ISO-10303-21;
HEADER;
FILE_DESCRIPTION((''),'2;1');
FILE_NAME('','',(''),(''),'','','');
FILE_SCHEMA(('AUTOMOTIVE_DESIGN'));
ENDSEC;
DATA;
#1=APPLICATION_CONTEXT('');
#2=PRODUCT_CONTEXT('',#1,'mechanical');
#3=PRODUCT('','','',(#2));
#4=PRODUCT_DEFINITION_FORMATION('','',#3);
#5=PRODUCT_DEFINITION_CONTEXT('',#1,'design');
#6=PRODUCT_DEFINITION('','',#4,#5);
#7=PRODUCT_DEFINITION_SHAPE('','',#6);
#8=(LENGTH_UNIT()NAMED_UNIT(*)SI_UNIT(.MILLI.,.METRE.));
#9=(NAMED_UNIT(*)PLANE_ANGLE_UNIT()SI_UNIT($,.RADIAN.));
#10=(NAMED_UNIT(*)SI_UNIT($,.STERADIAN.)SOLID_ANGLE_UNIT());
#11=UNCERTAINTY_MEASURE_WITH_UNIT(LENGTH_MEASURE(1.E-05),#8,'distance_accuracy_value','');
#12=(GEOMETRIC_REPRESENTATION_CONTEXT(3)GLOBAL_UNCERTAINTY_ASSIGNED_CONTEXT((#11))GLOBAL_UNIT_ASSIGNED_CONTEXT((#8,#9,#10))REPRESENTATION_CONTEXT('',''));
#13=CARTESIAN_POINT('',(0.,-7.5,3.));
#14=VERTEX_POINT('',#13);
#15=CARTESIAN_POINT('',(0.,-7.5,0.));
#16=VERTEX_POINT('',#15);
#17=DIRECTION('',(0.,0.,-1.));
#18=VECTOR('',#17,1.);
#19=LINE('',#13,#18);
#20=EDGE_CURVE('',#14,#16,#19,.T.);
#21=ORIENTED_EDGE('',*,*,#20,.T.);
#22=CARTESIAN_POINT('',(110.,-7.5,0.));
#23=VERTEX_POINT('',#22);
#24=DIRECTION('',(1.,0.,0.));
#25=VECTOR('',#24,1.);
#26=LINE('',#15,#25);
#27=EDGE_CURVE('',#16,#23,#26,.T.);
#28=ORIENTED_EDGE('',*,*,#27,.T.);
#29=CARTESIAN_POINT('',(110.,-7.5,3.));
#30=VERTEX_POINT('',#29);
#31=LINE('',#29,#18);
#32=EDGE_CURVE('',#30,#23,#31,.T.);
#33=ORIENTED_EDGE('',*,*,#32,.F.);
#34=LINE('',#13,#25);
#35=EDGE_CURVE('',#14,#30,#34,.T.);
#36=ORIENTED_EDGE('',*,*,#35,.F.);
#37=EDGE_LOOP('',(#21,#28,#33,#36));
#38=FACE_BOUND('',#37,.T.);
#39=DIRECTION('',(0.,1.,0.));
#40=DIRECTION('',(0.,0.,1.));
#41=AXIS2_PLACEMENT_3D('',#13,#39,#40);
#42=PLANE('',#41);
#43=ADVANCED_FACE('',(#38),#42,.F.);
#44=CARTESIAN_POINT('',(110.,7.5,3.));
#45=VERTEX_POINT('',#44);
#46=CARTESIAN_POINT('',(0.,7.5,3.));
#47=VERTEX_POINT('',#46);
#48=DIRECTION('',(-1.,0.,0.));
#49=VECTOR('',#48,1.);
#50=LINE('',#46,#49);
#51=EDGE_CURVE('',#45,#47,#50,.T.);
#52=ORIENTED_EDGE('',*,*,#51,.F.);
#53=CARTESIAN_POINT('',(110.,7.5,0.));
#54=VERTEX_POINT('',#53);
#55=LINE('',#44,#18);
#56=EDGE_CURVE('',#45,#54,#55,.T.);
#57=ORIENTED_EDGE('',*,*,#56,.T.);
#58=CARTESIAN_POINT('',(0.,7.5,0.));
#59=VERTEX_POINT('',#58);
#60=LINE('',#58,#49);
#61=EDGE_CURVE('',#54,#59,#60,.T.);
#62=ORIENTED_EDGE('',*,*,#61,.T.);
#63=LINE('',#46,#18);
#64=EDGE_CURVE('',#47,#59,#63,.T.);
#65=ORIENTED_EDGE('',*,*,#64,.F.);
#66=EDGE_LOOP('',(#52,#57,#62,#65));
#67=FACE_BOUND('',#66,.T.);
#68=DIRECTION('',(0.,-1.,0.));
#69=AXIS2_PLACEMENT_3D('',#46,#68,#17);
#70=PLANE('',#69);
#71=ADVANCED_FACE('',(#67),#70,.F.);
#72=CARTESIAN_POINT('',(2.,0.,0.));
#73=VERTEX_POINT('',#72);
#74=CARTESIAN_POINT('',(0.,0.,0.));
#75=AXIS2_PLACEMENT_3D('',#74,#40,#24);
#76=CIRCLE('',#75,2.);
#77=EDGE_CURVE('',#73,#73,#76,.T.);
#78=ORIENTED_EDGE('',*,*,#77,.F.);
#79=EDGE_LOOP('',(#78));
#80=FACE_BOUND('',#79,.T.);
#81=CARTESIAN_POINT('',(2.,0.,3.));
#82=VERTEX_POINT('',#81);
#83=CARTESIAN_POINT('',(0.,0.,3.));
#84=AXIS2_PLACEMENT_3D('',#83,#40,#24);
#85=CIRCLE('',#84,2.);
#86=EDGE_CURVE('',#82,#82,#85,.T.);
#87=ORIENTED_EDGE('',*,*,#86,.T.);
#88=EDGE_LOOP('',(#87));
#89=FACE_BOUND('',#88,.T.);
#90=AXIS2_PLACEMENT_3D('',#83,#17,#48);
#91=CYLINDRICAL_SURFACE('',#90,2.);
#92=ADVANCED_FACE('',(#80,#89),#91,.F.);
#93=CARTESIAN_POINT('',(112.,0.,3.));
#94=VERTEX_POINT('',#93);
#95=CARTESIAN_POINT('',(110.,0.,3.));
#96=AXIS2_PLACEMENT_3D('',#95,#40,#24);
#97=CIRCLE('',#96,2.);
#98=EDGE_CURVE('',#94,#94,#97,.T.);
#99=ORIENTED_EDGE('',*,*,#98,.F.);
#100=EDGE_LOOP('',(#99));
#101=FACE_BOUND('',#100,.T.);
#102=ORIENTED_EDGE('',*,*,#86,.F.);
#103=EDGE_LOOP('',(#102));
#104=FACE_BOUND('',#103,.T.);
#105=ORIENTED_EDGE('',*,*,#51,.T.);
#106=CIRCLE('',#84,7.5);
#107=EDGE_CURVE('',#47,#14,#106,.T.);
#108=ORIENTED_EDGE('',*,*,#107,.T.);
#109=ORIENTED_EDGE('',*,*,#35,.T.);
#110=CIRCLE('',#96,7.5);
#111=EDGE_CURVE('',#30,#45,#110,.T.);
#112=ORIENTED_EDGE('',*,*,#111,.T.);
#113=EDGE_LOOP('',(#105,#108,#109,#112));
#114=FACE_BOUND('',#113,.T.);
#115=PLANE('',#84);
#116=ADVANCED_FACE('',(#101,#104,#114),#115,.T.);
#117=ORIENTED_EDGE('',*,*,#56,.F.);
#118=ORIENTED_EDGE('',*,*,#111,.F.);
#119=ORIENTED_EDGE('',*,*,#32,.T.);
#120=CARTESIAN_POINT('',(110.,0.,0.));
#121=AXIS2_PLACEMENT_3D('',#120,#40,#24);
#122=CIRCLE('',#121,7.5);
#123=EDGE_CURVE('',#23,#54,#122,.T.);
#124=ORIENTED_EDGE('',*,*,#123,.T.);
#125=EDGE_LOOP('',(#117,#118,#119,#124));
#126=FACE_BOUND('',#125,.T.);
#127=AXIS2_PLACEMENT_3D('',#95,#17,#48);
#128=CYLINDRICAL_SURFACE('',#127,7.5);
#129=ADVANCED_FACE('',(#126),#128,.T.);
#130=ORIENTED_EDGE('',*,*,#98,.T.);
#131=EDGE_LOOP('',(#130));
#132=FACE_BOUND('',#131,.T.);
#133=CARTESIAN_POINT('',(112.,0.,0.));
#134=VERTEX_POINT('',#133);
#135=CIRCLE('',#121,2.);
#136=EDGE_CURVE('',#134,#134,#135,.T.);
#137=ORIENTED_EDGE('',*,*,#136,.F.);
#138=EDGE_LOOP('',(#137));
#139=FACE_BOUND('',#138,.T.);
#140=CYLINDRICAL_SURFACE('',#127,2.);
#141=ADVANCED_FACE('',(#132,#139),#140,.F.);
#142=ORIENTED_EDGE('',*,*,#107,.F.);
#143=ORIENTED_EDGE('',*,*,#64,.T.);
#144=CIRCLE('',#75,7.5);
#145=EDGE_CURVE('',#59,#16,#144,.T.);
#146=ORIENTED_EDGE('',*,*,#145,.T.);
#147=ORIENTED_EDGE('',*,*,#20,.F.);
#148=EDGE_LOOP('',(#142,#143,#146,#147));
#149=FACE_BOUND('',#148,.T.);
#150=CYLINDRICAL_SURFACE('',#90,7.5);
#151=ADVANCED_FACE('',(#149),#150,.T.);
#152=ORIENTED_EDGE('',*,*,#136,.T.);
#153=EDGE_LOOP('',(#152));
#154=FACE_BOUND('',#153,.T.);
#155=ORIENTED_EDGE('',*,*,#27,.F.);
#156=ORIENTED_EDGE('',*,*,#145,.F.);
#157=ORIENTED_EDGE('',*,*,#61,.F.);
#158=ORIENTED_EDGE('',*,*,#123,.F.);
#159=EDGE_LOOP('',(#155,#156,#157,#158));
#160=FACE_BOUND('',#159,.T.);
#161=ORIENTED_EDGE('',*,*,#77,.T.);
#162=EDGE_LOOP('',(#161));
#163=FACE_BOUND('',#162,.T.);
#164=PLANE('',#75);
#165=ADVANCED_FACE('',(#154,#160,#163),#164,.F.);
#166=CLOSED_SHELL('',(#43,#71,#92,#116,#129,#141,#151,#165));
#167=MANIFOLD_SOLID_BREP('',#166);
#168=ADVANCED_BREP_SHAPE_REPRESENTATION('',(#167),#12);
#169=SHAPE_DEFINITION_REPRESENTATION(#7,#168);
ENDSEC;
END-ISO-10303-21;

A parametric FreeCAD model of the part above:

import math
import FreeCAD as App
import Part
import Sketcher
from FreeCAD import Vector
Q = App.Units.Quantity

doc = App.newDocument("Part")
body = doc.addObject("PartDesign::Body", "Body")

# Sketch on XY plane
sketch1 = body.newObject("Sketcher::SketchObject", "Sketch")
sketch1.AttachmentSupport = (doc.getObject("XY_Plane"), [""])
sketch1.MapMode = "FlatFace"
sketch1.addGeometry([
    Part.LineSegment(Vector(110, 7.5, 0), Vector(0, 7.5, 0)),  # 0
    Part.ArcOfCircle(Part.Circle(Vector(0, 0, 0), Vector(0, 0, 1), 7.5), math.radians(90), math.radians(270)),  # 1
    Part.LineSegment(Vector(0, -7.5, 0), Vector(110, -7.5, 0)),  # 2
    Part.ArcOfCircle(Part.Circle(Vector(110, 0, 0), Vector(0, 0, 1), 7.5), math.radians(-90), math.radians(90)),  # 3
    Part.Circle(Vector(110, 0, 0), Vector(0, 0, 1), 2),  # 4
    Part.Circle(Vector(0, 0, 0), Vector(0, 0, 1), 2),  # 5
], False)
sketch1.addConstraint([
    Sketcher.Constraint("Tangent", 0, 2, 1, 1),
    Sketcher.Constraint("Tangent", 1, 2, 2, 1),
    Sketcher.Constraint("Tangent", 2, 2, 3, 1),
    Sketcher.Constraint("Tangent", 3, 2, 0, 1),
    Sketcher.Constraint("Horizontal", 0),
    Sketcher.Constraint("Horizontal", 2),
    Sketcher.Constraint("Coincident", 1, 3, -1, 1),
    Sketcher.Constraint("Coincident", 5, 3, -1, 1),
    Sketcher.Constraint("Coincident", 4, 3, 3, 3),
    Sketcher.Constraint("Equal", 4, 5),
    Sketcher.Constraint("Diameter", 4, Q("4 mm")),
    Sketcher.Constraint("Radius", 1, Q("7.5 mm")),
    Sketcher.Constraint("DistanceX", 0, 2, 0, 1, Q("110 mm")),
])
pad1 = body.newObject("PartDesign::Pad", "Pad")
pad1.Profile = sketch1
pad1.Length = 3

doc.recompute()
